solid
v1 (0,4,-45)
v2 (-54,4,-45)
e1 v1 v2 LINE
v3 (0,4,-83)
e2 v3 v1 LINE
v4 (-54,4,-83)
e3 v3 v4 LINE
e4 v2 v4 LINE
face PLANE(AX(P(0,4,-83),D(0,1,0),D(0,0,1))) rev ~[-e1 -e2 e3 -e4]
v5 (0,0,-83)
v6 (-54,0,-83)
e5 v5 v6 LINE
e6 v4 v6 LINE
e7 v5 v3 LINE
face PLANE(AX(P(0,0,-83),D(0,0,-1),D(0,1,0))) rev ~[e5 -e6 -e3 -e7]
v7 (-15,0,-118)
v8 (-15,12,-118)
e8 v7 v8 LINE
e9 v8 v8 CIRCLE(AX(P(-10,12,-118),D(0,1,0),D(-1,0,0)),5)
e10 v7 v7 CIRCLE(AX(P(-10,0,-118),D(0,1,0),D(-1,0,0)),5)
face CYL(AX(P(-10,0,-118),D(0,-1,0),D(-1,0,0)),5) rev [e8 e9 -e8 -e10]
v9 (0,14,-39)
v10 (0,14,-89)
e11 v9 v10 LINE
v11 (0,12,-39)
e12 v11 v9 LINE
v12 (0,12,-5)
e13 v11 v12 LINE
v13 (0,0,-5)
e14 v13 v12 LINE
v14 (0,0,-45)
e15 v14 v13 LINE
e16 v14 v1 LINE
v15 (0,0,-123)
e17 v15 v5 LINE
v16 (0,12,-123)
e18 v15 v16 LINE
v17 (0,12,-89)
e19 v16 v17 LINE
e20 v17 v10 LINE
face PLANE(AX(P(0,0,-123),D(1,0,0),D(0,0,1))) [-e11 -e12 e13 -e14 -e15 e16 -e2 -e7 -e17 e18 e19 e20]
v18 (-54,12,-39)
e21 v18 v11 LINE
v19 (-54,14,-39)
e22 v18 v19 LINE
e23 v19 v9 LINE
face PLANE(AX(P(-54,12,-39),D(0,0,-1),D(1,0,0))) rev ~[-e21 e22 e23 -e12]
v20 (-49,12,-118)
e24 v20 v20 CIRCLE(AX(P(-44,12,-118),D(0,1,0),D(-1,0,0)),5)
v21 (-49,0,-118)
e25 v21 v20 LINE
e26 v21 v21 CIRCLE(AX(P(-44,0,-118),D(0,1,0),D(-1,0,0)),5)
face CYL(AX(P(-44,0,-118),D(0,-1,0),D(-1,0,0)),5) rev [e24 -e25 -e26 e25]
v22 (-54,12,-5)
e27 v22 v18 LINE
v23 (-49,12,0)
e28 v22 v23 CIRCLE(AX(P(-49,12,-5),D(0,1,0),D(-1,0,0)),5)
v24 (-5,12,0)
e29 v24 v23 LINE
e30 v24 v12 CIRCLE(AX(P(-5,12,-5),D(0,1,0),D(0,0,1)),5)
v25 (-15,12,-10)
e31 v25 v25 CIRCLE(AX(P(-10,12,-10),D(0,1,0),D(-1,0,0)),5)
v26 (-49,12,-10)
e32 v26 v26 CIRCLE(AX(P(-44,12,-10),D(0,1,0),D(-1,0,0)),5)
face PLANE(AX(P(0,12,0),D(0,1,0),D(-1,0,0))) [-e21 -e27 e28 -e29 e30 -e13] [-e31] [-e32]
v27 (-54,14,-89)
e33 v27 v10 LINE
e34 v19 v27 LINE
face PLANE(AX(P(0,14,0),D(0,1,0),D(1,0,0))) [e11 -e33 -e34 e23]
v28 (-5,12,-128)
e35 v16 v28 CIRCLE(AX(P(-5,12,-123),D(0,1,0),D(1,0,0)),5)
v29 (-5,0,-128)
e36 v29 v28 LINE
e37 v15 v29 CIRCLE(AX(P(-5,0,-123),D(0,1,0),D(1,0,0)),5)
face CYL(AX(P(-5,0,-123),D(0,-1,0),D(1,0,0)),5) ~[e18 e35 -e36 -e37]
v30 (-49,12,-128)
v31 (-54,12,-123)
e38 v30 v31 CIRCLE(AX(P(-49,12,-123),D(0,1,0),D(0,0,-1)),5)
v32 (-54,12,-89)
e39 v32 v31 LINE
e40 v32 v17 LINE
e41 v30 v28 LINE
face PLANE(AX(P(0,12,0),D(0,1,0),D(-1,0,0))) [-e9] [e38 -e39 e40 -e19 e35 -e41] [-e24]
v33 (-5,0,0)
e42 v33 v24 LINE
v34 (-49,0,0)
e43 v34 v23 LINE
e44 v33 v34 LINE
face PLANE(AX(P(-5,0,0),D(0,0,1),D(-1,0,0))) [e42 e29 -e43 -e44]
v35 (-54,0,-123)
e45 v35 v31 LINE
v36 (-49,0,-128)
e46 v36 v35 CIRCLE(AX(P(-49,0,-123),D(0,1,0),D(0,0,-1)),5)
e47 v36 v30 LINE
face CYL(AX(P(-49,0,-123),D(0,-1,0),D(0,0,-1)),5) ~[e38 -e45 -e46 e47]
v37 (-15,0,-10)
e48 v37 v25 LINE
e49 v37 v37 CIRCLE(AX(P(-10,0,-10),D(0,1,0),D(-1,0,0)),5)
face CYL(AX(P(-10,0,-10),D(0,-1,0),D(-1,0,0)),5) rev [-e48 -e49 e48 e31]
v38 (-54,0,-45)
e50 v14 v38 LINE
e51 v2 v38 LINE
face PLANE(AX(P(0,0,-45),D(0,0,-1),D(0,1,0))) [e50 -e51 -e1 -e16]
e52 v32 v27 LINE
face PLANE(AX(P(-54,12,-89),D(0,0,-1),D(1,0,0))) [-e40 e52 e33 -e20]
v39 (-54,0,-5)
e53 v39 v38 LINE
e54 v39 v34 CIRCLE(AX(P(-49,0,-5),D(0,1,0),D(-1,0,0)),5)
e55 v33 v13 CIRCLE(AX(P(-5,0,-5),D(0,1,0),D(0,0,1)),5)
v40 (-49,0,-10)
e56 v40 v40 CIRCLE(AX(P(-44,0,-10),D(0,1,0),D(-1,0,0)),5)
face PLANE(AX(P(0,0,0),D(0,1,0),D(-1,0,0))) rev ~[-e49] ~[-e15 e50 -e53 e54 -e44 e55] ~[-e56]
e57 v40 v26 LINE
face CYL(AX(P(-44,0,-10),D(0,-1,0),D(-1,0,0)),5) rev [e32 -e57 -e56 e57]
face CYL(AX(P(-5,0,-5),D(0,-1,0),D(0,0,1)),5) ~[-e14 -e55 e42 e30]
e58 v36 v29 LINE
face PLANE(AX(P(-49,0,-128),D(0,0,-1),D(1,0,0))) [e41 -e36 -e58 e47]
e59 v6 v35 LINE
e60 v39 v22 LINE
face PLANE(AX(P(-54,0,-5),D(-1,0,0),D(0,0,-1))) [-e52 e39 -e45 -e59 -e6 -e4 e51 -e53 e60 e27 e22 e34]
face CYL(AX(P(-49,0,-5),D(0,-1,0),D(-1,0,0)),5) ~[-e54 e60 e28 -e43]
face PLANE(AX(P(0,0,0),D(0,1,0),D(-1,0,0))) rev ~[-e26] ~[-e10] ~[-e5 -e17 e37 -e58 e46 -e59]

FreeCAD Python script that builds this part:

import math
import FreeCAD as App
import Part
import Sketcher


def add_polygon(sketch, points):
    """Adds a closed chain of lines whose ends are joined by coincident constraints."""
    first, n = sketch.GeometryCount, len(points)
    for a, b in zip(points, points[1:] + points[:1]):
        sketch.addGeometry(Part.LineSegment(App.Vector(*a, 0), App.Vector(*b, 0)), False)
    for i in range(n):
        sketch.addConstraint(Sketcher.Constraint("Coincident", first + i, 2, first + (i + 1) % n, 1))

doc = App.newDocument("Part")
body = doc.addObject("PartDesign::Body", "Body")

sketch1 = doc.addObject("Sketcher::SketchObject", "Sketch")
body.addObject(sketch1)
sketch1.AttachmentSupport = (doc.XZ_Plane, [""])
sketch1.MapMode = "FlatFace"
sketch1.addGeometry([
    Part.LineSegment(App.Vector(-49, 0, 0), App.Vector(-5, 0, 0)),
    Part.ArcOfCircle(Part.Circle(App.Vector(-5, -5, 0), App.Vector(0, 0, 1), 5), math.radians(0), math.radians(90)),
    Part.LineSegment(App.Vector(0, -5, 0), App.Vector(0, -123, 0)),
    Part.ArcOfCircle(Part.Circle(App.Vector(-5, -123, 0), App.Vector(0, 0, 1), 5), math.radians(-90), math.radians(0)),
    Part.LineSegment(App.Vector(-5, -128, 0), App.Vector(-49, -128, 0)),
    Part.ArcOfCircle(Part.Circle(App.Vector(-49, -123, 0), App.Vector(0, 0, 1), 5), math.radians(180), math.radians(270)),
    Part.LineSegment(App.Vector(-54, -123, 0), App.Vector(-54, -5, 0)),
    Part.ArcOfCircle(Part.Circle(App.Vector(-49, -5, 0), App.Vector(0, 0, 1), 5), math.radians(90), math.radians(180)),
    Part.Circle(App.Vector(-10, -118, 0), App.Vector(0, 0, 1), 5),
    Part.Circle(App.Vector(-44, -118, 0), App.Vector(0, 0, 1), 5),
    Part.Circle(App.Vector(-10, -10, 0), App.Vector(0, 0, 1), 5),
    Part.Circle(App.Vector(-44, -10, 0), App.Vector(0, 0, 1), 5),
], False)
sketch1.addConstraint([
    Sketcher.Constraint("Tangent", 0, 2, 1, 2),
    Sketcher.Constraint("Tangent", 1, 1, 2, 1),
    Sketcher.Constraint("Tangent", 2, 2, 3, 2),
    Sketcher.Constraint("Tangent", 3, 1, 4, 1),
    Sketcher.Constraint("Tangent", 4, 2, 5, 2),
    Sketcher.Constraint("Tangent", 5, 1, 6, 1),
    Sketcher.Constraint("Tangent", 6, 2, 7, 2),
    Sketcher.Constraint("Tangent", 7, 1, 0, 1),
    Sketcher.Constraint("Horizontal", 0),
    Sketcher.Constraint("Vertical", 2),
    Sketcher.Constraint("Horizontal", 4),
    Sketcher.Constraint("Vertical", 6),
    Sketcher.Constraint("Equal", 1, 3),
    Sketcher.Constraint("Equal", 3, 5),
    Sketcher.Constraint("Equal", 5, 7),
    Sketcher.Constraint("Equal", 7, 8),
    Sketcher.Constraint("Equal", 8, 9),
    Sketcher.Constraint("Equal", 9, 10),
    Sketcher.Constraint("Equal", 10, 11),
    Sketcher.Constraint("PointOnObject", 0, 2, -1),
    Sketcher.Constraint("PointOnObject", 1, 1, -2),
    Sketcher.Constraint("Horizontal", 8, 3, 9, 3),
    Sketcher.Constraint("Horizontal", 10, 3, 11, 3),
    Sketcher.Constraint("Vertical", 8, 3, 10, 3),
    Sketcher.Constraint("Vertical", 9, 3, 11, 3),
    Sketcher.Constraint("Diameter", 8, 10.0),
    Sketcher.Constraint("DistanceX", 8, 3, -1, 1, 10.0),
    Sketcher.Constraint("DistanceY", 10, 3, -1, 1, 10.0),
    Sketcher.Constraint("DistanceY", 3, 1, -1, 1, 128.0),
    Sketcher.Constraint("DistanceX", 5, 1, -1, 1, 54.0),
    Sketcher.Constraint("DistanceY", 3, 3, 8, 3, 5.0),
    Sketcher.Constraint("DistanceX", 5, 3, 9, 3, 5.0),
])
pad1 = doc.addObject("PartDesign::Pad", "Pad")
body.addObject(pad1)
pad1.Profile = sketch1
pad1.Length = 12
pad1.Reversed = True

sketch2 = doc.addObject("Sketcher::SketchObject", "Sketch001")
body.addObject(sketch2)
sketch2.AttachmentSupport = (doc.YZ_Plane, [""])
sketch2.MapMode = "FlatFace"
add_polygon(sketch2, [(0, -45), (0, -83), (4, -83), (4, -45)])
sketch2.addConstraint([
    Sketcher.Constraint("Vertical", 0),
    Sketcher.Constraint("Horizontal", 1),
    Sketcher.Constraint("Vertical", 2),
    Sketcher.Constraint("Horizontal", 3),
    Sketcher.Constraint("PointOnObject", 0, 2, -2),
    Sketcher.Constraint("DistanceX", 1, 1, 1, 2, 4.0),
    Sketcher.Constraint("DistanceY", 0, 2, 0, 1, 38.0),
    Sketcher.Constraint("DistanceY", 0, 2, -1, 1, 83.0),
])
pocket1 = doc.addObject("PartDesign::Pocket", "Pocket")
body.addObject(pocket1)
pocket1.Profile = sketch2
pocket1.Length = 85.25

sketch3 = doc.addObject("Sketcher::SketchObject", "Sketch002")
body.addObject(sketch3)
sketch3.AttachmentSupport = (doc.XZ_Plane, [""])
sketch3.MapMode = "FlatFace"
sketch3.AttachmentOffset = App.Placement(App.Vector(0, 0, -12), App.Rotation())
add_polygon(sketch3, [(-54, -89), (-54, -39), (0, -39), (0, -89)])
sketch3.addConstraint([
    Sketcher.Constraint("Vertical", 0),
    Sketcher.Constraint("Horizontal", 1),
    Sketcher.Constraint("Vertical", 2),
    Sketcher.Constraint("Horizontal", 3),
    Sketcher.Constraint("PointOnObject", 1, 2, -2),
    Sketcher.Constraint("DistanceX", 1, 1, 1, 2, 54.0),
    Sketcher.Constraint("DistanceY", 0, 1, 0, 2, 50.0),
    Sketcher.Constraint("DistanceY", 0, 2, -1, 1, 39.0),
])
pad2 = doc.addObject("PartDesign::Pad", "Pad001")
body.addObject(pad2)
pad2.Profile = sketch3
pad2.Length = 2
pad2.Reversed = True

doc.recompute()
